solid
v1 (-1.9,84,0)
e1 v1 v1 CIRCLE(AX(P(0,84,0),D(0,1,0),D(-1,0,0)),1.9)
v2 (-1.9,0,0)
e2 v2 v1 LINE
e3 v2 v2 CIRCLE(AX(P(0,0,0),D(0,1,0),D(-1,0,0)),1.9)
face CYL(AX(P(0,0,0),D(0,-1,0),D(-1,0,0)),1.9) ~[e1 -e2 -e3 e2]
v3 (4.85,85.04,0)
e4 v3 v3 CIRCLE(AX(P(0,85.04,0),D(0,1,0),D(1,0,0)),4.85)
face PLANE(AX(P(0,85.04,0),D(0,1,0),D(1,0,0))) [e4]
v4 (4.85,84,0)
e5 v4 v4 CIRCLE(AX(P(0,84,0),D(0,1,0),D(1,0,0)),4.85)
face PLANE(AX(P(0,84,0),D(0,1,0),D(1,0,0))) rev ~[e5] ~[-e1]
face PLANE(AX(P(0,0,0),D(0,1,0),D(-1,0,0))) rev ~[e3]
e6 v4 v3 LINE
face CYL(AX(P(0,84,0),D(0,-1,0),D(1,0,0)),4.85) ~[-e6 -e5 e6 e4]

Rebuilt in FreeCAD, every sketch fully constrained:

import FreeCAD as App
import Part
import Sketcher

V = App.Vector
Q = App.Units.Quantity

doc = App.newDocument("Part")
body = doc.addObject("PartDesign::Body", "Body")

sketch1 = doc.addObject("Sketcher::SketchObject", "Sketch")
body.addObject(sketch1)
sketch1.AttachmentSupport = (doc.XZ_Plane, [""])
sketch1.MapMode = "FlatFace"
sketch1.addGeometry(Part.Circle(V(0, 0, 0), V(0, 0, 1), 1.9), False)
sketch1.addConstraint([
    Sketcher.Constraint("Coincident", 0, 3, -1, 1),
    Sketcher.Constraint("Diameter", 0, Q("3.8 mm")),
])
pad1 = doc.addObject("PartDesign::Pad", "Pad")
body.addObject(pad1)
pad1.Profile = sketch1
pad1.Length = 84
pad1.Reversed = True

sketch2 = doc.addObject("Sketcher::SketchObject", "Sketch001")
body.addObject(sketch2)
sketch2.AttachmentSupport = (doc.XZ_Plane, [""])
sketch2.MapMode = "FlatFace"
sketch2.AttachmentOffset = App.Placement(V(0, 0, -84), App.Rotation())
sketch2.addGeometry(Part.Circle(V(0, 0, 0), V(0, 0, 1), 4.85), False)
sketch2.addConstraint([
    Sketcher.Constraint("Coincident", 0, 3, -1, 1),
    Sketcher.Constraint("Diameter", 0, Q("9.7 mm")),
])
pad2 = doc.addObject("PartDesign::Pad", "Pad001")
body.addObject(pad2)
pad2.Profile = sketch2
pad2.Length = 1.04
pad2.Reversed = True

doc.recompute()
